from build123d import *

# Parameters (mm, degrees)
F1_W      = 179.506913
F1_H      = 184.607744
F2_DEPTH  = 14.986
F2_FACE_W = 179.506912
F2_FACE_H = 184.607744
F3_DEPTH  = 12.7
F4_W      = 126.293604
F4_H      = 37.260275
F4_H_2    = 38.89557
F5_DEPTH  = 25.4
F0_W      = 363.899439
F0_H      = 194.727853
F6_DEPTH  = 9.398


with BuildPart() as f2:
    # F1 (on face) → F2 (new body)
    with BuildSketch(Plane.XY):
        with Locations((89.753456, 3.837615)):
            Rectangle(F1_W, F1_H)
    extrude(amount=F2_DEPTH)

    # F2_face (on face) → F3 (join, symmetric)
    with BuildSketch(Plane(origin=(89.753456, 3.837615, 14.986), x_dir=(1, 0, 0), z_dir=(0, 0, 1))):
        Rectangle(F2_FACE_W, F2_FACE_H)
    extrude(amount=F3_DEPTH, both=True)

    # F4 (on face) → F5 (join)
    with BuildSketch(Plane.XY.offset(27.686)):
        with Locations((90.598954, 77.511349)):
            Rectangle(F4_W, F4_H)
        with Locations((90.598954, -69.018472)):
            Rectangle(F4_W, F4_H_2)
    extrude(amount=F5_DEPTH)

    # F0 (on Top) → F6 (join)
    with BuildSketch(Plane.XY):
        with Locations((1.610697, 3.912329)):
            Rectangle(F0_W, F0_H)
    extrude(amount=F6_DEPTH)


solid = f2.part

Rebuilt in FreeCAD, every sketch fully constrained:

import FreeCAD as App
import Part
import Sketcher

V = App.Vector


def add_polygon(sketch, points):
    """Adds a closed chain of lines whose ends are joined by coincident constraints."""
    first, n = sketch.GeometryCount, len(points)
    for a, b in zip(points, points[1:] + points[:1]):
        sketch.addGeometry(Part.LineSegment(App.Vector(*a, 0), App.Vector(*b, 0)), False)
    for i in range(n):
        sketch.addConstraint(Sketcher.Constraint("Coincident", first + i, 2, first + (i + 1) % n, 1))

doc = App.newDocument("Part")
params = doc.addObject("Spreadsheet::Sheet", "Params")
for row, (alias, value) in enumerate([
    ("pad1_length", "0.59 in"),
    ("pad2_length", "1 in"),
    ("pad3_length", "1 in"),
    ("pad4_length", "0.37 in"),
], start=1):
    params.set(f"A{row}", alias)
    params.set(f"B{row}", "=" + value)
    params.setAlias(f"B{row}", alias)

body = doc.addObject("PartDesign::Body", "Body")

sketch1 = body.newObject("Sketcher::SketchObject", "Sketch")
sketch1.AttachmentSupport = (doc.getObject("XY_Plane"), [""])
sketch1.MapMode = "FlatFace"
add_polygon(sketch1, [(0, 96), (0, -88), (180, -88), (180, 96)])
sketch1.addConstraint([
    Sketcher.Constraint("Vertical", 0),
    Sketcher.Constraint("Horizontal", 1),
    Sketcher.Constraint("Vertical", 2),
    Sketcher.Constraint("Horizontal", 3),
    Sketcher.Constraint("PointOnObject", 0, 2, -2),
    Sketcher.Constraint("DistanceX", 1, 1, 1, 2, 179.506913),
    Sketcher.Constraint("DistanceY", 0, 2, 0, 1, 184.607744),
    Sketcher.Constraint("DistanceY", 0, 2, -1, 1, 88.466257),
])
pad1 = body.newObject("PartDesign::Pad", "Pad")
pad1.Profile = sketch1
pad1.setExpression("Length", "Params.pad1_length")

sketch2 = body.newObject("Sketcher::SketchObject", "Sketch001")
sketch2.AttachmentSupport = (doc.getObject("XY_Plane"), [""])
sketch2.MapMode = "FlatFace"
sketch2.AttachmentOffset = App.Placement(V(0, 0, 0.59 * 25.4), App.Rotation())
add_polygon(sketch2, [(0, 96), (0, -88), (180, -88), (180, 96)])
sketch2.addConstraint([
    Sketcher.Constraint("Vertical", 0),
    Sketcher.Constraint("Horizontal", 1),
    Sketcher.Constraint("Vertical", 2),
    Sketcher.Constraint("Horizontal", 3),
    Sketcher.Constraint("PointOnObject", 0, 2, -2),
    Sketcher.Constraint("DistanceX", 1, 1, 1, 2, 179.506912),
    Sketcher.Constraint("DistanceY", 0, 2, 0, 1, 184.607744),
    Sketcher.Constraint("DistanceY", 0, 2, -1, 1, 88.466257),
])
pad2 = body.newObject("PartDesign::Pad", "Pad001")
pad2.Profile = sketch2
pad2.setExpression("Length", "Params.pad2_length")
pad2.Midplane = True

sketch3 = body.newObject("Sketcher::SketchObject", "Sketch002")
sketch3.AttachmentSupport = (doc.getObject("XY_Plane"), [""])
sketch3.MapMode = "FlatFace"
sketch3.AttachmentOffset = App.Placement(V(0, 0, 1.09 * 25.4), App.Rotation())
add_polygon(sketch3, [(27, 96), (27, 59), (154, 59), (154, 96)])
add_polygon(sketch3, [(27, -50), (27, -88), (154, -88), (154, -50)])
sketch3.addConstraint([
    Sketcher.Constraint("Vertical", 0),
    Sketcher.Constraint("Horizontal", 1),
    Sketcher.Constraint("Vertical", 2),
    Sketcher.Constraint("Horizontal", 3),
    Sketcher.Constraint("Vertical", 4),
    Sketcher.Constraint("Horizontal", 5),
    Sketcher.Constraint("Vertical", 6),
    Sketcher.Constraint("Horizontal", 7),
    Sketcher.Constraint("Vertical", 3, 2, 4, 2),
    Sketcher.Constraint("Vertical", 2, 2, 5, 2),
    Sketcher.Constraint("DistanceY", 4, 2, 4, 1, 38.89557),
    Sketcher.Constraint("DistanceY", 6, 2, 1, 2, 108.451898),
    Sketcher.Constraint("DistanceX", 1, 1, 1, 2, 126.293604),
    Sketcher.Constraint("DistanceY", 0, 2, 0, 1, 37.260275),
    Sketcher.Constraint("DistanceY", -1, 1, 0, 2, 58.881211),
    Sketcher.Constraint("DistanceX", -1, 1, 0, 2, 27.452152),
])
pad3 = body.newObject("PartDesign::Pad", "Pad002")
pad3.Profile = sketch3
pad3.setExpression("Length", "Params.pad3_length")

sketch4 = body.newObject("Sketcher::SketchObject", "Sketch003")
sketch4.AttachmentSupport = (doc.getObject("XY_Plane"), [""])
sketch4.MapMode = "FlatFace"
add_polygon(sketch4, [(-180, 101), (-180, -93), (184, -93), (184, 101)])
sketch4.addConstraint([
    Sketcher.Constraint("Vertical", 0),
    Sketcher.Constraint("Horizontal", 1),
    Sketcher.Constraint("Vertical", 2),
    Sketcher.Constraint("Horizontal", 3),
    Sketcher.Constraint("DistanceX", 1, 1, 1, 2, 363.899439),
    Sketcher.Constraint("DistanceY", 0, 2, 0, 1, 194.727853),
    Sketcher.Constraint("DistanceX", 0, 2, -1, 1, 180.339022),
    Sketcher.Constraint("DistanceY", 0, 2, -1, 1, 93.451598),
])
pad4 = body.newObject("PartDesign::Pad", "Pad003")
pad4.Profile = sketch4
pad4.setExpression("Length", "Params.pad4_length")

doc.recompute()
